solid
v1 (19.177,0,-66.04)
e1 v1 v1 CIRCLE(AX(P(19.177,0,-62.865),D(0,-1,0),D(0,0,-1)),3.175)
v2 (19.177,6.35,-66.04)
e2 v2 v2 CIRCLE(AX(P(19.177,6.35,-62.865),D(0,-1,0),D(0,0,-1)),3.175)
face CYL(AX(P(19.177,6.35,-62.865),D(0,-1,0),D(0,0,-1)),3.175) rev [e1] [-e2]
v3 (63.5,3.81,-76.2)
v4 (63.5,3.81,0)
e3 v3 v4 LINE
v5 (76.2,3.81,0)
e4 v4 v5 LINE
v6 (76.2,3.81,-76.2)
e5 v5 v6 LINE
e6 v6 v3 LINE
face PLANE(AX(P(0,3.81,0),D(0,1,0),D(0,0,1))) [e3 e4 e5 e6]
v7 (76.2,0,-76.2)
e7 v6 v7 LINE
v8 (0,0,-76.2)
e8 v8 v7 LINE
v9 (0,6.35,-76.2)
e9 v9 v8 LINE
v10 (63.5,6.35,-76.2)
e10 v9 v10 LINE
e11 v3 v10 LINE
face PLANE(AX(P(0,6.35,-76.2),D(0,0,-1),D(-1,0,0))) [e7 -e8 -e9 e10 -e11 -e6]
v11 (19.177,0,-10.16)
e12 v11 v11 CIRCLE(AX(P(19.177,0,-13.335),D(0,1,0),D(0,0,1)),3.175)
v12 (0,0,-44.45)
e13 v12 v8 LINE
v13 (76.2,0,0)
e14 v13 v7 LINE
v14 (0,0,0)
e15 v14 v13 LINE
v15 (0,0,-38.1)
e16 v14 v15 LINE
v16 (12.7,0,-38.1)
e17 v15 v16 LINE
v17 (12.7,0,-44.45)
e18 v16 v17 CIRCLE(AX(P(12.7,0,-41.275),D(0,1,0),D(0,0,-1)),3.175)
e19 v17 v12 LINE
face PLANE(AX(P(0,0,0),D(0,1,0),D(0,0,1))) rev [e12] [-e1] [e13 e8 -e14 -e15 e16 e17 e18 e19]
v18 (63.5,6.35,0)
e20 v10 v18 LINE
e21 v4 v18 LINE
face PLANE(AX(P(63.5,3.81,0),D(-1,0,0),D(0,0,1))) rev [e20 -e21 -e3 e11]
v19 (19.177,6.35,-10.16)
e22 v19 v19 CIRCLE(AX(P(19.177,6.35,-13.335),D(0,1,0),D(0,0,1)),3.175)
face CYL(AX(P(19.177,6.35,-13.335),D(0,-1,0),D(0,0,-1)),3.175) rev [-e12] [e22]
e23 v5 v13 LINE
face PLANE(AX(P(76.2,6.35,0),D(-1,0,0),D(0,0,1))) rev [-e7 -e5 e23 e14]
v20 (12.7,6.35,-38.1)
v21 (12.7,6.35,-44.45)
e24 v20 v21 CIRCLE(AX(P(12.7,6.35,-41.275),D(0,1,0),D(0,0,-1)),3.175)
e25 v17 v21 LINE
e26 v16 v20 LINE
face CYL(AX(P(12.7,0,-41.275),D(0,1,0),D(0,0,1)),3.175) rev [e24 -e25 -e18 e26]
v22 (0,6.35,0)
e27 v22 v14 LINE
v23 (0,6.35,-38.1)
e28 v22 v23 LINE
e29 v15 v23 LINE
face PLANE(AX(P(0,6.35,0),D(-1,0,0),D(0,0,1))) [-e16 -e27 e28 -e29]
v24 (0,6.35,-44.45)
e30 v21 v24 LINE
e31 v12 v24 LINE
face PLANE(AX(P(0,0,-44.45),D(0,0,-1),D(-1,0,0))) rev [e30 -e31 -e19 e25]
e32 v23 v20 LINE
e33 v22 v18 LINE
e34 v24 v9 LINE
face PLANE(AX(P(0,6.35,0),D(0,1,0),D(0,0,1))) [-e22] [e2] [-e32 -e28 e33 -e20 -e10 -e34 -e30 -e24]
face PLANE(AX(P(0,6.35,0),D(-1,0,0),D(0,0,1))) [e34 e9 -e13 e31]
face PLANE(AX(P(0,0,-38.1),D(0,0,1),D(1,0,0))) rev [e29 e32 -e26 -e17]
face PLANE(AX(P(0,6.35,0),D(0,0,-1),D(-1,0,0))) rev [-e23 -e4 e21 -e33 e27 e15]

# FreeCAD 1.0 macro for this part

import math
import FreeCAD as App
import Part
import Sketcher
Q = App.Units.Quantity

doc = App.newDocument("Part")
body = doc.addObject("PartDesign::Body", "Body")

# Sketch on XZ plane
sketch1 = doc.addObject("Sketcher::SketchObject", "Sketch")
body.addObject(sketch1)
sketch1.AttachmentSupport = (doc.XZ_Plane, [""])
sketch1.MapMode = "FlatFace"
sketch1.addGeometry(Part.LineSegment(App.Vector(0, -76.2, 0), App.Vector(0, 0, 0)), False)
sketch1.addGeometry(Part.LineSegment(App.Vector(0, 0, 0), App.Vector(76.2, 0, 0)), False)
sketch1.addGeometry(Part.LineSegment(App.Vector(76.2, 0, 0), App.Vector(76.2, -76.2, 0)), False)
sketch1.addGeometry(Part.LineSegment(App.Vector(76.2, -76.2, 0), App.Vector(0, -76.2, 0)), False)
sketch1.addGeometry(Part.Circle(App.Vector(19.177, -13.335, 0), App.Vector(0, 0, 1), 3.175), False)
sketch1.addGeometry(Part.Circle(App.Vector(19.177, -62.865, 0), App.Vector(0, 0, 1), 3.175), False)
sketch1.addConstraint(Sketcher.Constraint("Coincident", 0, 2, 1, 1))
sketch1.addConstraint(Sketcher.Constraint("Coincident", 1, 2, 2, 1))
sketch1.addConstraint(Sketcher.Constraint("Coincident", 2, 2, 3, 1))
sketch1.addConstraint(Sketcher.Constraint("Coincident", 3, 2, 0, 1))
sketch1.addConstraint(Sketcher.Constraint("Vertical", 0))
sketch1.addConstraint(Sketcher.Constraint("Horizontal", 1))
sketch1.addConstraint(Sketcher.Constraint("Vertical", 2))
sketch1.addConstraint(Sketcher.Constraint("Horizontal", 3))
sketch1.addConstraint(Sketcher.Constraint("Coincident", 0, 2, -1, 1))
sketch1.addConstraint(Sketcher.Constraint("Equal", 4, 5))
sketch1.addConstraint(Sketcher.Constraint("Vertical", 4, 3, 5, 3))
sketch1.addConstraint(Sketcher.Constraint("Equal", 3, 0))
sketch1.addConstraint(Sketcher.Constraint("Diameter", 4, Q("0.25 in")))
sketch1.addConstraint(Sketcher.Constraint("DistanceX", 1, 1, 1, 2, Q("3 in")))
sketch1.addConstraint(Sketcher.Constraint("DistanceY", 5, 3, 4, 3, Q("1.95 in")))
sketch1.addConstraint(Sketcher.Constraint("DistanceX", -1, 1, 4, 3, Q("0.755 in")))
sketch1.addConstraint(Sketcher.Constraint("DistanceY", 4, 3, -1, 1, Q("0.525 in")))
pad1 = doc.addObject("PartDesign::Pad", "Pad")
body.addObject(pad1)
pad1.Profile = sketch1
pad1.Length = Q("0.25 in")
pad1.Reversed = True

# Sketch on XZ plane
sketch2 = doc.addObject("Sketcher::SketchObject", "Sketch001")
body.addObject(sketch2)
sketch2.AttachmentSupport = (doc.XZ_Plane, [""])
sketch2.MapMode = "FlatFace"
sketch2.AttachmentOffset = App.Placement(App.Vector(0, 0, -0.25 * 25.4), App.Rotation())
sketch2.addGeometry(Part.LineSegment(App.Vector(63.5, -76.2, 0), App.Vector(63.5, 0, 0)), False)
sketch2.addGeometry(Part.LineSegment(App.Vector(63.5, 0, 0), App.Vector(76.2, 0, 0)), False)
sketch2.addGeometry(Part.LineSegment(App.Vector(76.2, 0, 0), App.Vector(76.2, -76.2, 0)), False)
sketch2.addGeometry(Part.LineSegment(App.Vector(76.2, -76.2, 0), App.Vector(63.5, -76.2, 0)), False)
sketch2.addConstraint(Sketcher.Constraint("Coincident", 0, 2, 1, 1))
sketch2.addConstraint(Sketcher.Constraint("Coincident", 1, 2, 2, 1))
sketch2.addConstraint(Sketcher.Constraint("Coincident", 2, 2, 3, 1))
sketch2.addConstraint(Sketcher.Constraint("Coincident", 3, 2, 0, 1))
sketch2.addConstraint(Sketcher.Constraint("Vertical", 0))
sketch2.addConstraint(Sketcher.Constraint("Horizontal", 1))
sketch2.addConstraint(Sketcher.Constraint("Vertical", 2))
sketch2.addConstraint(Sketcher.Constraint("Horizontal", 3))
sketch2.addConstraint(Sketcher.Constraint("PointOnObject", 0, 2, -1))
sketch2.addConstraint(Sketcher.Constraint("DistanceY", 0, 1, 0, 2, Q("3 in")))
sketch2.addConstraint(Sketcher.Constraint("DistanceX", 1, 1, 1, 2, Q("0.5 in")))
sketch2.addConstraint(Sketcher.Constraint("DistanceX", -1, 1, 1, 2, Q("3 in")))
pocket1 = doc.addObject("PartDesign::Pocket", "Pocket")
body.addObject(pocket1)
pocket1.Profile = sketch2
pocket1.Length = Q("0.1 in")
pocket1.Reversed = True

# Sketch on XZ plane
sketch3 = doc.addObject("Sketcher::SketchObject", "Sketch002")
body.addObject(sketch3)
sketch3.AttachmentSupport = (doc.XZ_Plane, [""])
sketch3.MapMode = "FlatFace"
sketch3.AttachmentOffset = App.Placement(App.Vector(0, 0, -0.25 * 25.4), App.Rotation())
sketch3.addGeometry(Part.LineSegment(App.Vector(12.7, -44.45, 0), App.Vector(0, -44.45, 0)), False)
sketch3.addGeometry(Part.LineSegment(App.Vector(0, -44.45, 0), App.Vector(0, -38.1, 0)), False)
sketch3.addGeometry(Part.LineSegment(App.Vector(0, -38.1, 0), App.Vector(12.7, -38.1, 0)), False)
sketch3.addGeometry(Part.ArcOfCircle(Part.Circle(App.Vector(12.7, -41.275, 0), App.Vector(0, 0, 1), 3.175), math.radians(-90), math.radians(90)), False)
sketch3.addConstraint(Sketcher.Constraint("Coincident", 0, 2, 1, 1))
sketch3.addConstraint(Sketcher.Constraint("Coincident", 1, 2, 2, 1))
sketch3.addConstraint(Sketcher.Constraint("Tangent", 2, 2, 3, 2))
sketch3.addConstraint(Sketcher.Constraint("Tangent", 3, 1, 0, 1))
sketch3.addConstraint(Sketcher.Constraint("Horizontal", 0))
sketch3.addConstraint(Sketcher.Constraint("Vertical", 1))
sketch3.addConstraint(Sketcher.Constraint("Horizontal", 2))
sketch3.addConstraint(Sketcher.Constraint("PointOnObject", 0, 2, -2))
sketch3.addConstraint(Sketcher.Constraint("DistanceX", 0, 2, 0, 1, Q("0.5 in")))
sketch3.addConstraint(Sketcher.Constraint("Radius", 3, Q("0.125 in")))
sketch3.addConstraint(Sketcher.Constraint("DistanceY", 1, 2, -1, 1, Q("1.5 in")))
pocket2 = doc.addObject("PartDesign::Pocket", "Pocket001")
body.addObject(pocket2)
pocket2.Profile = sketch3
pocket2.Type = "ThroughAll"
pocket2.Reversed = True

doc.recompute()
